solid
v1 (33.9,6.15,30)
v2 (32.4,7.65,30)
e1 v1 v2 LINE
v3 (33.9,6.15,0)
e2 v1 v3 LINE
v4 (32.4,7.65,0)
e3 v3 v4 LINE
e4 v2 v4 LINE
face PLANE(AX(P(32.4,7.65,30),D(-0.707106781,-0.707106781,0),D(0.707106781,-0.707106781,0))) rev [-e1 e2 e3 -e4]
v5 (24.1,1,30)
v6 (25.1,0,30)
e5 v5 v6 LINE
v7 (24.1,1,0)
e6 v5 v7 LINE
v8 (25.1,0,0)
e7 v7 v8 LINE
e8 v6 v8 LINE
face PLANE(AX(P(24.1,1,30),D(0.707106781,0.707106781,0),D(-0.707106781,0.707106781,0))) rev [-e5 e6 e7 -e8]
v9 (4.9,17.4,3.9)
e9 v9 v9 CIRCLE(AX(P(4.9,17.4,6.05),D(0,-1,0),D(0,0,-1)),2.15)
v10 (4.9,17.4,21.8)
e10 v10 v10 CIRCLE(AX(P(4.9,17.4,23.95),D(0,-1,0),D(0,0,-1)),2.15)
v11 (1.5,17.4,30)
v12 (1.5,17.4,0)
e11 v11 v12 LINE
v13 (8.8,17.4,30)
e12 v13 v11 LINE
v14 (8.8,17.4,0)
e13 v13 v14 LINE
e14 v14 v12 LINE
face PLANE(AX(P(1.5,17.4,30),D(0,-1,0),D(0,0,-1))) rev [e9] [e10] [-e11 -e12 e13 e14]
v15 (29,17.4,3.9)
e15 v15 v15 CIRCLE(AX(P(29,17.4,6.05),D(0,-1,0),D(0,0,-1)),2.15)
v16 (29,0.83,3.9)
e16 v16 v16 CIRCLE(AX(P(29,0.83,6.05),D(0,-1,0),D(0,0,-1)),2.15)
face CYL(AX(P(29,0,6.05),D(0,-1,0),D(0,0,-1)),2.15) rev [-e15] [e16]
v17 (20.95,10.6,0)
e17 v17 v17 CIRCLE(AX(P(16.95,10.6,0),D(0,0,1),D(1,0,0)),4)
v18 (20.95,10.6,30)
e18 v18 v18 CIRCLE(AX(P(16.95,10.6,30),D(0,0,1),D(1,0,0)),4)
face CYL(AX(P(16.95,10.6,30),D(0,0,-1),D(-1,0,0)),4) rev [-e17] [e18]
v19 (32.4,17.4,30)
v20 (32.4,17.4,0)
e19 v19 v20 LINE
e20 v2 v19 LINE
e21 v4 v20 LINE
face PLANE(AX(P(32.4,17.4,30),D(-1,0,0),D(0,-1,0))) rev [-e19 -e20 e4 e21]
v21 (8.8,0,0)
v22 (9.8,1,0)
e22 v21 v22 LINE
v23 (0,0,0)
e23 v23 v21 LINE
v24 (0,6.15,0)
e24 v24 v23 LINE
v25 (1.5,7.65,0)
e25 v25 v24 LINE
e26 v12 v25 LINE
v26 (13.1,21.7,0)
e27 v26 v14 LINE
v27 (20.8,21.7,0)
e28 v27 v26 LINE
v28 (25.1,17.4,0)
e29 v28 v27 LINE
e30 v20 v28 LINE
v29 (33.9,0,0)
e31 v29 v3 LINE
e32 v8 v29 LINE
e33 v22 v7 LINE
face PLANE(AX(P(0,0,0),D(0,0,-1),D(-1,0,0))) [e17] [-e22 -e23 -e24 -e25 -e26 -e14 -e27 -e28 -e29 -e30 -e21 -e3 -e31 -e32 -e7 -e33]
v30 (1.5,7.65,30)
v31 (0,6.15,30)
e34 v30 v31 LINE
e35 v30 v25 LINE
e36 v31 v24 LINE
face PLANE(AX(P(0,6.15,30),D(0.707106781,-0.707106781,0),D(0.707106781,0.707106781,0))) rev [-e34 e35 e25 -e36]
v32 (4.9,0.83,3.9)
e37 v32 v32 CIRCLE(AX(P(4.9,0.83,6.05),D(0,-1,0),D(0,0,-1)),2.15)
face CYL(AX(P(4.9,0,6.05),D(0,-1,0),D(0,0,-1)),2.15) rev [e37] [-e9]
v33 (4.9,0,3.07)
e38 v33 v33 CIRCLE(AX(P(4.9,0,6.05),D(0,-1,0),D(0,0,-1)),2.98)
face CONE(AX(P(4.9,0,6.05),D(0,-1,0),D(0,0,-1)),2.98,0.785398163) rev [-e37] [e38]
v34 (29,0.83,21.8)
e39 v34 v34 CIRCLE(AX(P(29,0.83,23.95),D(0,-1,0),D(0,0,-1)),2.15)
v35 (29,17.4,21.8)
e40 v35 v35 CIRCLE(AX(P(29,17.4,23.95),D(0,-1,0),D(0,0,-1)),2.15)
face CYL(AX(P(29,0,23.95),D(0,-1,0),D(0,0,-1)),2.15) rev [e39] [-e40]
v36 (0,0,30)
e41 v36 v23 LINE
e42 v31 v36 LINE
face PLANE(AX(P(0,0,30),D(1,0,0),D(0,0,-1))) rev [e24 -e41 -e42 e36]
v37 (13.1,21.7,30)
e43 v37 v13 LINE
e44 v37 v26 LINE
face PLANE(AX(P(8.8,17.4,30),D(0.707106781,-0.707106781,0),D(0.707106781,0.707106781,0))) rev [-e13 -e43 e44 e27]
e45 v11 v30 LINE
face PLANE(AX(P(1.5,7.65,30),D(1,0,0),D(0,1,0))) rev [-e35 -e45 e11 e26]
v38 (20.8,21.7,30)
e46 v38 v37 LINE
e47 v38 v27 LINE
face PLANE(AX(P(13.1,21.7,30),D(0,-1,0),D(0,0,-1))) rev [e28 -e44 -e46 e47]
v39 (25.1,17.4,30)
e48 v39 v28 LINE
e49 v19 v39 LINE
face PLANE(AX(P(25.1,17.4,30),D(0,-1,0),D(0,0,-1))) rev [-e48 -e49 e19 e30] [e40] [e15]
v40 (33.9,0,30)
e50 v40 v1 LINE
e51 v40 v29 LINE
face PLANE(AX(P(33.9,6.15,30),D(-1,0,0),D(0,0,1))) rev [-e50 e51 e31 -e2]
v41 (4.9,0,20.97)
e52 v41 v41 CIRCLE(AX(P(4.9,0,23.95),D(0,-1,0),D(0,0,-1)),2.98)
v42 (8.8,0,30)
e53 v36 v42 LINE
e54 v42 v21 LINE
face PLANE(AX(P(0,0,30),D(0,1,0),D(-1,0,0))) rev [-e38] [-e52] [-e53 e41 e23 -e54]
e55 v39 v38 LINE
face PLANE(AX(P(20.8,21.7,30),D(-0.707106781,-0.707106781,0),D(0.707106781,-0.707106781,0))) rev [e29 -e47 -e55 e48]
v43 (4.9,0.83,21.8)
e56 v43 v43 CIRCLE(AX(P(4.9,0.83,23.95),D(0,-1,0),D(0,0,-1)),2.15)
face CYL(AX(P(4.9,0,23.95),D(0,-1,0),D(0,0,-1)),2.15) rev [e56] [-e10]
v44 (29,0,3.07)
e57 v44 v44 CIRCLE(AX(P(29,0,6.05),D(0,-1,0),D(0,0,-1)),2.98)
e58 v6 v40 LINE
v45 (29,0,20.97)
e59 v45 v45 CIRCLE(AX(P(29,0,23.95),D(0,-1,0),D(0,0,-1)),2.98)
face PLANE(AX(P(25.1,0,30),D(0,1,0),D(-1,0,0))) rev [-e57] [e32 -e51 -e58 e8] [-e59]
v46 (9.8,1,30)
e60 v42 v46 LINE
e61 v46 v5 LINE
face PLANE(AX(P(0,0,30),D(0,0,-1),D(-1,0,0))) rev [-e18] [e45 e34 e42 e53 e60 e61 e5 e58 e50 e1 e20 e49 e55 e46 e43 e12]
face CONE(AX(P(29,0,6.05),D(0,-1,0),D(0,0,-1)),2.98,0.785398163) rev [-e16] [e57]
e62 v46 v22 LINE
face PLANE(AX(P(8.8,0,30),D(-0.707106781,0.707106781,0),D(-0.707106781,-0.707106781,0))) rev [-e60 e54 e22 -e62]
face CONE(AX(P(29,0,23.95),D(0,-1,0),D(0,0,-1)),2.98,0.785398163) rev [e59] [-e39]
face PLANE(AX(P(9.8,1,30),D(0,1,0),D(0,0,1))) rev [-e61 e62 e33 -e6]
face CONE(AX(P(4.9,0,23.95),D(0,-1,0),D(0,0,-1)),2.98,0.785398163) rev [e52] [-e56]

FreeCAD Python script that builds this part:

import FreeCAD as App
import Part
import Sketcher
Q = App.Units.Quantity

doc = App.newDocument("Part")
body = doc.addObject("PartDesign::Body", "Body")

# Sketch on XY plane
sketch1 = body.newObject("Sketcher::SketchObject", "Sketch")
sketch1.AttachmentSupport = (doc.getObject("XY_Plane"), [""])
sketch1.MapMode = "FlatFace"
sketch1.addGeometry(Part.LineSegment(App.Vector(0, 6.2, 0), App.Vector(0, 0, 0)), False)
sketch1.addGeometry(Part.LineSegment(App.Vector(0, 0, 0), App.Vector(8.8, 0, 0)), False)
sketch1.addGeometry(Part.LineSegment(App.Vector(8.8, 0, 0), App.Vector(9.8, 1, 0)), False)
sketch1.addGeometry(Part.LineSegment(App.Vector(9.8, 1, 0), App.Vector(24.1, 1, 0)), False)
sketch1.addGeometry(Part.LineSegment(App.Vector(24.1, 1, 0), App.Vector(25.1, 0, 0)), False)
sketch1.addGeometry(Part.LineSegment(App.Vector(25.1, 0, 0), App.Vector(33.9, 0, 0)), False)
sketch1.addGeometry(Part.LineSegment(App.Vector(33.9, 0, 0), App.Vector(33.9, 6.2, 0)), False)
sketch1.addGeometry(Part.LineSegment(App.Vector(33.9, 6.2, 0), App.Vector(32.4, 7.7, 0)), False)
sketch1.addGeometry(Part.LineSegment(App.Vector(32.4, 7.7, 0), App.Vector(32.4, 17.4, 0)), False)
sketch1.addGeometry(Part.LineSegment(App.Vector(32.4, 17.4, 0), App.Vector(25.1, 17.4, 0)), False)
sketch1.addGeometry(Part.LineSegment(App.Vector(25.1, 17.4, 0), App.Vector(20.8, 21.7, 0)), False)
sketch1.addGeometry(Part.LineSegment(App.Vector(20.8, 21.7, 0), App.Vector(13.1, 21.7, 0)), False)
sketch1.addGeometry(Part.LineSegment(App.Vector(13.1, 21.7, 0), App.Vector(8.8, 17.4, 0)), False)
sketch1.addGeometry(Part.LineSegment(App.Vector(8.8, 17.4, 0), App.Vector(1.5, 17.4, 0)), False)
sketch1.addGeometry(Part.LineSegment(App.Vector(1.5, 17.4, 0), App.Vector(1.5, 7.7, 0)), False)
sketch1.addGeometry(Part.LineSegment(App.Vector(1.5, 7.7, 0), App.Vector(0, 6.2, 0)), False)
sketch1.addGeometry(Part.Circle(App.Vector(16.9, 10.6, 0), App.Vector(0, 0, 1), 4), False)
sketch1.addConstraint(Sketcher.Constraint("Coincident", 0, 2, 1, 1))
sketch1.addConstraint(Sketcher.Constraint("Coincident", 1, 2, 2, 1))
sketch1.addConstraint(Sketcher.Constraint("Coincident", 2, 2, 3, 1))
sketch1.addConstraint(Sketcher.Constraint("Coincident", 3, 2, 4, 1))
sketch1.addConstraint(Sketcher.Constraint("Coincident", 4, 2, 5, 1))
sketch1.addConstraint(Sketcher.Constraint("Coincident", 5, 2, 6, 1))
sketch1.addConstraint(Sketcher.Constraint("Coincident", 6, 2, 7, 1))
sketch1.addConstraint(Sketcher.Constraint("Coincident", 7, 2, 8, 1))
sketch1.addConstraint(Sketcher.Constraint("Coincident", 8, 2, 9, 1))
sketch1.addConstraint(Sketcher.Constraint("Coincident", 9, 2, 10, 1))
sketch1.addConstraint(Sketcher.Constraint("Coincident", 10, 2, 11, 1))
sketch1.addConstraint(Sketcher.Constraint("Coincident", 11, 2, 12, 1))
sketch1.addConstraint(Sketcher.Constraint("Coincident", 12, 2, 13, 1))
sketch1.addConstraint(Sketcher.Constraint("Coincident", 13, 2, 14, 1))
sketch1.addConstraint(Sketcher.Constraint("Coincident", 14, 2, 15, 1))
sketch1.addConstraint(Sketcher.Constraint("Coincident", 15, 2, 0, 1))
sketch1.addConstraint(Sketcher.Constraint("Vertical", 0))
sketch1.addConstraint(Sketcher.Constraint("Horizontal", 1))
sketch1.addConstraint(Sketcher.Constraint("Horizontal", 3))
sketch1.addConstraint(Sketcher.Constraint("Horizontal", 5))
sketch1.addConstraint(Sketcher.Constraint("Vertical", 6))
sketch1.addConstraint(Sketcher.Constraint("Vertical", 8))
sketch1.addConstraint(Sketcher.Constraint("Horizontal", 9))
sketch1.addConstraint(Sketcher.Constraint("Horizontal", 11))
sketch1.addConstraint(Sketcher.Constraint("Horizontal", 13))
sketch1.addConstraint(Sketcher.Constraint("Vertical", 14))
sketch1.addConstraint(Sketcher.Constraint("Coincident", 0, 2, -1, 1))
sketch1.addConstraint(Sketcher.Constraint("PointOnObject", 4, 2, -1))
sketch1.addConstraint(Sketcher.Constraint("Perpendicular", 2, 4))
sketch1.addConstraint(Sketcher.Constraint("Parallel", 4, 7))
sketch1.addConstraint(Sketcher.Constraint("Parallel", 7, 10))
sketch1.addConstraint(Sketcher.Constraint("Perpendicular", 10, 12))
sketch1.addConstraint(Sketcher.Constraint("Parallel", 12, 15))
sketch1.addConstraint(Sketcher.Constraint("Horizontal", 9, 2, 12, 2))
sketch1.addConstraint(Sketcher.Constraint("Horizontal", 7, 2, 14, 2))
sketch1.addConstraint(Sketcher.Constraint("Horizontal", 6, 2, 15, 2))
sketch1.addConstraint(Sketcher.Constraint("Vertical", 4, 2, 9, 2))
sketch1.addConstraint(Sketcher.Constraint("Vertical", 1, 2, 12, 2))
sketch1.addConstraint(Sketcher.Constraint("Equal", 1, 5))
sketch1.addConstraint(Sketcher.Constraint("Equal", 9, 13))
sketch1.addConstraint(Sketcher.Constraint("Diameter", 16, Q("8 mm")))
sketch1.addConstraint(Sketcher.Constraint("DistanceX", 1, 1, 1, 2, Q("8.8 mm")))
sketch1.addConstraint(Sketcher.Constraint("DistanceX", 3, 1, 3, 2, Q("14.3 mm")))
sketch1.addConstraint(Sketcher.Constraint("DistanceX", 9, 2, 9, 1, Q("7.3 mm")))
sketch1.addConstraint(Sketcher.Constraint("DistanceX", 11, 2, 11, 1, Q("7.7 mm")))
sketch1.addConstraint(Sketcher.Constraint("DistanceY", -1, 1, 2, 2, Q("1 mm")))
sketch1.addConstraint(Sketcher.Constraint("DistanceY", 0, 2, 0, 1, Q("6.15 mm")))
sketch1.addConstraint(Sketcher.Constraint("DistanceY", 8, 1, 8, 2, Q("9.75 mm")))
sketch1.addConstraint(Sketcher.Constraint("DistanceY", -1, 1, 16, 3, Q("10.6 mm")))
sketch1.addConstraint(Sketcher.Constraint("DistanceX", -1, 1, 16, 3, Q("16.95 mm")))
pad1 = body.newObject("PartDesign::Pad", "Pad")
pad1.Profile = sketch1
pad1.Length = 30

# Sketch on XZ plane
sketch2 = body.newObject("Sketcher::SketchObject", "Sketch001")
sketch2.AttachmentSupport = (doc.getObject("XZ_Plane"), [""])
sketch2.MapMode = "FlatFace"
sketch2.addGeometry(Part.Circle(App.Vector(4.9, 6, 0), App.Vector(0, 0, 1), 2.1), False)
sketch2.addGeometry(Part.Circle(App.Vector(4.9, 23.9, 0), App.Vector(0, 0, 1), 2.1), False)
sketch2.addGeometry(Part.Circle(App.Vector(29, 6, 0), App.Vector(0, 0, 1), 2.1), False)
sketch2.addGeometry(Part.Circle(App.Vector(29, 23.9, 0), App.Vector(0, 0, 1), 2.1), False)
sketch2.addConstraint(Sketcher.Constraint("Equal", 0, 1))
sketch2.addConstraint(Sketcher.Constraint("Equal", 1, 2))
sketch2.addConstraint(Sketcher.Constraint("Equal", 2, 3))
sketch2.addConstraint(Sketcher.Constraint("Horizontal", 0, 3, 2, 3))
sketch2.addConstraint(Sketcher.Constraint("Horizontal", 1, 3, 3, 3))
sketch2.addConstraint(Sketcher.Constraint("Vertical", 0, 3, 1, 3))
sketch2.addConstraint(Sketcher.Constraint("Vertical", 2, 3, 3, 3))
sketch2.addConstraint(Sketcher.Constraint("Diameter", 0, Q("4.3 mm")))
sketch2.addConstraint(Sketcher.Constraint("DistanceX", -1, 1, 2, 3, Q("29 mm")))
sketch2.addConstraint(Sketcher.Constraint("DistanceX", -1, 1, 0, 3, Q("4.9 mm")))
sketch2.addConstraint(Sketcher.Constraint("DistanceY", 0, 3, 1, 3, Q("17.9 mm")))
sketch2.addConstraint(Sketcher.Constraint("DistanceY", -1, 1, 0, 3, Q("6.05 mm")))
doc.recompute()
hole = body.newObject("PartDesign::Hole", "Hole")
hole.Profile = sketch2
hole.ThreadType = "None"
hole.Diameter = 4.3
hole.DepthType = "ThroughAll"
hole.HoleCutType = "Countersink"
hole.HoleCutDiameter = 5.96
hole.HoleCutCountersinkAngle = 90

doc.recompute()
